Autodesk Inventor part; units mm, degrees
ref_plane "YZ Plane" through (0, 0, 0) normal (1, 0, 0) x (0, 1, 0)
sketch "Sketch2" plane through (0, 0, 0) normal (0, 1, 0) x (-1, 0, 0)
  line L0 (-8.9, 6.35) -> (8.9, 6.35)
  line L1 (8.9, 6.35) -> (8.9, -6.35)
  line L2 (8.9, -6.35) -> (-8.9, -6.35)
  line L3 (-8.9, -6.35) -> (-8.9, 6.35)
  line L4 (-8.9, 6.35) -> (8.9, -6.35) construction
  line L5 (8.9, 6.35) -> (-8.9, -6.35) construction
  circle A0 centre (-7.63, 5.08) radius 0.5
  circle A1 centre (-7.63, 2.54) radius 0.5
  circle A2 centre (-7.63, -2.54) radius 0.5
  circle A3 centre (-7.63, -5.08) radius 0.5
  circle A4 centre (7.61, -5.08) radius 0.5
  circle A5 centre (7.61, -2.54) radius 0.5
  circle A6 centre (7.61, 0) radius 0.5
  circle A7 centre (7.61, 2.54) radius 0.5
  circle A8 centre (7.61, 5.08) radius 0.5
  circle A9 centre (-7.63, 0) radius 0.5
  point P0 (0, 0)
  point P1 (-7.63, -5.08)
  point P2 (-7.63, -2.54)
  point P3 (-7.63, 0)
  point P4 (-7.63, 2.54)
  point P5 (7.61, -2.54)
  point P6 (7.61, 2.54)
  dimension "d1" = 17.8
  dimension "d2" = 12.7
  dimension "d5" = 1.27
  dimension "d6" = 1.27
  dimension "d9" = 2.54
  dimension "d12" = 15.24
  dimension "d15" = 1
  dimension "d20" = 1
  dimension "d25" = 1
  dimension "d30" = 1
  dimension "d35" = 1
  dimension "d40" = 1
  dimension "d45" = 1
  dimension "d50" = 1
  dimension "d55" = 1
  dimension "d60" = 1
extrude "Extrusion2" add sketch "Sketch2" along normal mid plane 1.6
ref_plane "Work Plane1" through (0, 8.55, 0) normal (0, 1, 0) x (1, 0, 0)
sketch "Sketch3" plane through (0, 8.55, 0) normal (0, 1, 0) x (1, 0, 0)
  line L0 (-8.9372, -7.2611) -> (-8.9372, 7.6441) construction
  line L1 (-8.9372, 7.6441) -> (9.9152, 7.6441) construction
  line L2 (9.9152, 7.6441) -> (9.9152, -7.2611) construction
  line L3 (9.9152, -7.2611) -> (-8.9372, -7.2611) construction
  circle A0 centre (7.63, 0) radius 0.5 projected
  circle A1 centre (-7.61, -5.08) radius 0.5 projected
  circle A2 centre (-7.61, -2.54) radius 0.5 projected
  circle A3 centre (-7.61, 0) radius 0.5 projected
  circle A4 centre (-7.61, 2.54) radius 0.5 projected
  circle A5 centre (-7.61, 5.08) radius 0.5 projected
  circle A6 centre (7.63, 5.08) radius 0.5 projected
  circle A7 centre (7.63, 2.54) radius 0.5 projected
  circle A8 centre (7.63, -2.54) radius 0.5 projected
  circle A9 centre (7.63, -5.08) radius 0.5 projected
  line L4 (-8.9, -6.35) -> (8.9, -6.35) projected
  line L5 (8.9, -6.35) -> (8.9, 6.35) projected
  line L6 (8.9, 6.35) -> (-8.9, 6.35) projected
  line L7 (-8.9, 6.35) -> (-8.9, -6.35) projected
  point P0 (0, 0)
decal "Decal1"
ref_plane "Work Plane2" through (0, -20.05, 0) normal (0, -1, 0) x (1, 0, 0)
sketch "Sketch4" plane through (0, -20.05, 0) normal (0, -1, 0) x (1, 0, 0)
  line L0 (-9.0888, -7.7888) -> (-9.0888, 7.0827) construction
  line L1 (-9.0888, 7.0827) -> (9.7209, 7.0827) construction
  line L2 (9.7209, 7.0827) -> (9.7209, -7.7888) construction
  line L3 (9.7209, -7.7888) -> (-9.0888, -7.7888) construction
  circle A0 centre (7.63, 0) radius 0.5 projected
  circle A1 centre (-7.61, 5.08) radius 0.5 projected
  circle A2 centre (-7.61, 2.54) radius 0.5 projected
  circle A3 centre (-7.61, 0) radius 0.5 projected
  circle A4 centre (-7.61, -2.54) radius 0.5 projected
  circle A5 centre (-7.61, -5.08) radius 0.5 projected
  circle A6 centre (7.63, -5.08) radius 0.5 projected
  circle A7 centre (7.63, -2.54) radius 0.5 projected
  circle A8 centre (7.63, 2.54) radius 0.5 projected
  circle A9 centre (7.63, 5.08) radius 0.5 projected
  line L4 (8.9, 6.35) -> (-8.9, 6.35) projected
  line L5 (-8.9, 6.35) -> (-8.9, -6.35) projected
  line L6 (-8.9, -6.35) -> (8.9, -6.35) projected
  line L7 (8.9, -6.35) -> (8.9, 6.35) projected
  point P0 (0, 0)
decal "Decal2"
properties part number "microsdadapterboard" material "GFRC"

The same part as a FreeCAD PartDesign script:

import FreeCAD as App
import Part
import Sketcher
from FreeCAD import Vector


def add_polygon(sketch, points):
    """Adds a closed chain of lines whose ends are joined by coincident constraints."""
    first, n = sketch.GeometryCount, len(points)
    for a, b in zip(points, points[1:] + points[:1]):
        sketch.addGeometry(Part.LineSegment(App.Vector(*a, 0), App.Vector(*b, 0)), False)
    for i in range(n):
        sketch.addConstraint(Sketcher.Constraint("Coincident", first + i, 2, first + (i + 1) % n, 1))

doc = App.newDocument("Part")
body = doc.addObject("PartDesign::Body", "Body")

# Sketch on XZ plane
sketch1 = doc.addObject("Sketcher::SketchObject", "Sketch")
body.addObject(sketch1)
sketch1.AttachmentSupport = (doc.XZ_Plane, [""])
sketch1.MapMode = "FlatFace"
add_polygon(sketch1, [(-8.9, 6.3), (8.9, 6.3), (8.9, -6.3), (-8.9, -6.3)])  # lines 0-3
sketch1.addGeometry(Part.Circle(Vector(7.6, -5.1, 0), Vector(0, 0, 1), 0.5), False)  # 4
sketch1.addGeometry(Part.Circle(Vector(7.6, -2.5, 0), Vector(0, 0, 1), 0.5), False)  # 5
sketch1.addGeometry(Part.Circle(Vector(7.6, 0, 0), Vector(0, 0, 1), 0.5), False)  # 6
sketch1.addGeometry(Part.Circle(Vector(-7.6, -5.1, 0), Vector(0, 0, 1), 0.5), False)  # 7
sketch1.addGeometry(Part.Circle(Vector(-7.6, -2.5, 0), Vector(0, 0, 1), 0.5), False)  # 8
sketch1.addGeometry(Part.Circle(Vector(-7.6, 0, 0), Vector(0, 0, 1), 0.5), False)  # 9
sketch1.addGeometry(Part.Circle(Vector(7.6, 2.5, 0), Vector(0, 0, 1), 0.5), False)  # 10
sketch1.addGeometry(Part.Circle(Vector(7.6, 5.1, 0), Vector(0, 0, 1), 0.5), False)  # 11
sketch1.addGeometry(Part.Circle(Vector(-7.6, 2.5, 0), Vector(0, 0, 1), 0.5), False)  # 12
sketch1.addGeometry(Part.Circle(Vector(-7.6, 5.1, 0), Vector(0, 0, 1), 0.5), False)  # 13
sketch1.addConstraint([
    Sketcher.Constraint("Horizontal", 0),
    Sketcher.Constraint("Vertical", 1),
    Sketcher.Constraint("Horizontal", 2),
    Sketcher.Constraint("Vertical", 3),
    Sketcher.Constraint("Equal", 4, 5),
    Sketcher.Constraint("Equal", 5, 6),
    Sketcher.Constraint("Equal", 6, 7),
    Sketcher.Constraint("Equal", 7, 8),
    Sketcher.Constraint("Equal", 8, 9),
    Sketcher.Constraint("Equal", 9, 10),
    Sketcher.Constraint("Equal", 10, 11),
    Sketcher.Constraint("Equal", 11, 12),
    Sketcher.Constraint("Equal", 12, 13),
    Sketcher.Constraint("Symmetric", 0, 2, 2, 2, -1, 1),
    Sketcher.Constraint("Symmetric", 5, 3, 10, 3, -1),
    Sketcher.Constraint("Symmetric", 4, 3, 11, 3, -1),
    Sketcher.Constraint("Symmetric", 8, 3, 12, 3, -1),
    Sketcher.Constraint("Symmetric", 7, 3, 13, 3, -1),
    Sketcher.Constraint("PointOnObject", 6, 3, -1),
    Sketcher.Constraint("PointOnObject", 9, 3, -1),
    Sketcher.Constraint("Horizontal", 4, 3, 7, 3),
    Sketcher.Constraint("Horizontal", 5, 3, 8, 3),
    Sketcher.Constraint("Vertical", 4, 3, 5, 3),
    Sketcher.Constraint("Vertical", 5, 3, 6, 3),
    Sketcher.Constraint("Vertical", 7, 3, 8, 3),
    Sketcher.Constraint("Vertical", 8, 3, 9, 3),
    Sketcher.Constraint("Diameter", 4, 1.0),
    Sketcher.Constraint("DistanceX", 0, 1, 0, 2, 17.8),
    Sketcher.Constraint("DistanceY", 1, 2, 1, 1, 12.7),
    Sketcher.Constraint("DistanceY", 5, 3, -1, 1, 2.54),
    Sketcher.Constraint("DistanceY", 4, 3, 5, 3, 2.54),
    Sketcher.Constraint("DistanceX", 7, 3, 4, 3, 15.24),
    Sketcher.Constraint("DistanceX", 11, 3, 0, 2, 1.27),
])
pad1 = doc.addObject("PartDesign::Pad", "Pad")
body.addObject(pad1)
pad1.Profile = sketch1
pad1.Length = 1.6
pad1.Midplane = True

doc.recompute()
